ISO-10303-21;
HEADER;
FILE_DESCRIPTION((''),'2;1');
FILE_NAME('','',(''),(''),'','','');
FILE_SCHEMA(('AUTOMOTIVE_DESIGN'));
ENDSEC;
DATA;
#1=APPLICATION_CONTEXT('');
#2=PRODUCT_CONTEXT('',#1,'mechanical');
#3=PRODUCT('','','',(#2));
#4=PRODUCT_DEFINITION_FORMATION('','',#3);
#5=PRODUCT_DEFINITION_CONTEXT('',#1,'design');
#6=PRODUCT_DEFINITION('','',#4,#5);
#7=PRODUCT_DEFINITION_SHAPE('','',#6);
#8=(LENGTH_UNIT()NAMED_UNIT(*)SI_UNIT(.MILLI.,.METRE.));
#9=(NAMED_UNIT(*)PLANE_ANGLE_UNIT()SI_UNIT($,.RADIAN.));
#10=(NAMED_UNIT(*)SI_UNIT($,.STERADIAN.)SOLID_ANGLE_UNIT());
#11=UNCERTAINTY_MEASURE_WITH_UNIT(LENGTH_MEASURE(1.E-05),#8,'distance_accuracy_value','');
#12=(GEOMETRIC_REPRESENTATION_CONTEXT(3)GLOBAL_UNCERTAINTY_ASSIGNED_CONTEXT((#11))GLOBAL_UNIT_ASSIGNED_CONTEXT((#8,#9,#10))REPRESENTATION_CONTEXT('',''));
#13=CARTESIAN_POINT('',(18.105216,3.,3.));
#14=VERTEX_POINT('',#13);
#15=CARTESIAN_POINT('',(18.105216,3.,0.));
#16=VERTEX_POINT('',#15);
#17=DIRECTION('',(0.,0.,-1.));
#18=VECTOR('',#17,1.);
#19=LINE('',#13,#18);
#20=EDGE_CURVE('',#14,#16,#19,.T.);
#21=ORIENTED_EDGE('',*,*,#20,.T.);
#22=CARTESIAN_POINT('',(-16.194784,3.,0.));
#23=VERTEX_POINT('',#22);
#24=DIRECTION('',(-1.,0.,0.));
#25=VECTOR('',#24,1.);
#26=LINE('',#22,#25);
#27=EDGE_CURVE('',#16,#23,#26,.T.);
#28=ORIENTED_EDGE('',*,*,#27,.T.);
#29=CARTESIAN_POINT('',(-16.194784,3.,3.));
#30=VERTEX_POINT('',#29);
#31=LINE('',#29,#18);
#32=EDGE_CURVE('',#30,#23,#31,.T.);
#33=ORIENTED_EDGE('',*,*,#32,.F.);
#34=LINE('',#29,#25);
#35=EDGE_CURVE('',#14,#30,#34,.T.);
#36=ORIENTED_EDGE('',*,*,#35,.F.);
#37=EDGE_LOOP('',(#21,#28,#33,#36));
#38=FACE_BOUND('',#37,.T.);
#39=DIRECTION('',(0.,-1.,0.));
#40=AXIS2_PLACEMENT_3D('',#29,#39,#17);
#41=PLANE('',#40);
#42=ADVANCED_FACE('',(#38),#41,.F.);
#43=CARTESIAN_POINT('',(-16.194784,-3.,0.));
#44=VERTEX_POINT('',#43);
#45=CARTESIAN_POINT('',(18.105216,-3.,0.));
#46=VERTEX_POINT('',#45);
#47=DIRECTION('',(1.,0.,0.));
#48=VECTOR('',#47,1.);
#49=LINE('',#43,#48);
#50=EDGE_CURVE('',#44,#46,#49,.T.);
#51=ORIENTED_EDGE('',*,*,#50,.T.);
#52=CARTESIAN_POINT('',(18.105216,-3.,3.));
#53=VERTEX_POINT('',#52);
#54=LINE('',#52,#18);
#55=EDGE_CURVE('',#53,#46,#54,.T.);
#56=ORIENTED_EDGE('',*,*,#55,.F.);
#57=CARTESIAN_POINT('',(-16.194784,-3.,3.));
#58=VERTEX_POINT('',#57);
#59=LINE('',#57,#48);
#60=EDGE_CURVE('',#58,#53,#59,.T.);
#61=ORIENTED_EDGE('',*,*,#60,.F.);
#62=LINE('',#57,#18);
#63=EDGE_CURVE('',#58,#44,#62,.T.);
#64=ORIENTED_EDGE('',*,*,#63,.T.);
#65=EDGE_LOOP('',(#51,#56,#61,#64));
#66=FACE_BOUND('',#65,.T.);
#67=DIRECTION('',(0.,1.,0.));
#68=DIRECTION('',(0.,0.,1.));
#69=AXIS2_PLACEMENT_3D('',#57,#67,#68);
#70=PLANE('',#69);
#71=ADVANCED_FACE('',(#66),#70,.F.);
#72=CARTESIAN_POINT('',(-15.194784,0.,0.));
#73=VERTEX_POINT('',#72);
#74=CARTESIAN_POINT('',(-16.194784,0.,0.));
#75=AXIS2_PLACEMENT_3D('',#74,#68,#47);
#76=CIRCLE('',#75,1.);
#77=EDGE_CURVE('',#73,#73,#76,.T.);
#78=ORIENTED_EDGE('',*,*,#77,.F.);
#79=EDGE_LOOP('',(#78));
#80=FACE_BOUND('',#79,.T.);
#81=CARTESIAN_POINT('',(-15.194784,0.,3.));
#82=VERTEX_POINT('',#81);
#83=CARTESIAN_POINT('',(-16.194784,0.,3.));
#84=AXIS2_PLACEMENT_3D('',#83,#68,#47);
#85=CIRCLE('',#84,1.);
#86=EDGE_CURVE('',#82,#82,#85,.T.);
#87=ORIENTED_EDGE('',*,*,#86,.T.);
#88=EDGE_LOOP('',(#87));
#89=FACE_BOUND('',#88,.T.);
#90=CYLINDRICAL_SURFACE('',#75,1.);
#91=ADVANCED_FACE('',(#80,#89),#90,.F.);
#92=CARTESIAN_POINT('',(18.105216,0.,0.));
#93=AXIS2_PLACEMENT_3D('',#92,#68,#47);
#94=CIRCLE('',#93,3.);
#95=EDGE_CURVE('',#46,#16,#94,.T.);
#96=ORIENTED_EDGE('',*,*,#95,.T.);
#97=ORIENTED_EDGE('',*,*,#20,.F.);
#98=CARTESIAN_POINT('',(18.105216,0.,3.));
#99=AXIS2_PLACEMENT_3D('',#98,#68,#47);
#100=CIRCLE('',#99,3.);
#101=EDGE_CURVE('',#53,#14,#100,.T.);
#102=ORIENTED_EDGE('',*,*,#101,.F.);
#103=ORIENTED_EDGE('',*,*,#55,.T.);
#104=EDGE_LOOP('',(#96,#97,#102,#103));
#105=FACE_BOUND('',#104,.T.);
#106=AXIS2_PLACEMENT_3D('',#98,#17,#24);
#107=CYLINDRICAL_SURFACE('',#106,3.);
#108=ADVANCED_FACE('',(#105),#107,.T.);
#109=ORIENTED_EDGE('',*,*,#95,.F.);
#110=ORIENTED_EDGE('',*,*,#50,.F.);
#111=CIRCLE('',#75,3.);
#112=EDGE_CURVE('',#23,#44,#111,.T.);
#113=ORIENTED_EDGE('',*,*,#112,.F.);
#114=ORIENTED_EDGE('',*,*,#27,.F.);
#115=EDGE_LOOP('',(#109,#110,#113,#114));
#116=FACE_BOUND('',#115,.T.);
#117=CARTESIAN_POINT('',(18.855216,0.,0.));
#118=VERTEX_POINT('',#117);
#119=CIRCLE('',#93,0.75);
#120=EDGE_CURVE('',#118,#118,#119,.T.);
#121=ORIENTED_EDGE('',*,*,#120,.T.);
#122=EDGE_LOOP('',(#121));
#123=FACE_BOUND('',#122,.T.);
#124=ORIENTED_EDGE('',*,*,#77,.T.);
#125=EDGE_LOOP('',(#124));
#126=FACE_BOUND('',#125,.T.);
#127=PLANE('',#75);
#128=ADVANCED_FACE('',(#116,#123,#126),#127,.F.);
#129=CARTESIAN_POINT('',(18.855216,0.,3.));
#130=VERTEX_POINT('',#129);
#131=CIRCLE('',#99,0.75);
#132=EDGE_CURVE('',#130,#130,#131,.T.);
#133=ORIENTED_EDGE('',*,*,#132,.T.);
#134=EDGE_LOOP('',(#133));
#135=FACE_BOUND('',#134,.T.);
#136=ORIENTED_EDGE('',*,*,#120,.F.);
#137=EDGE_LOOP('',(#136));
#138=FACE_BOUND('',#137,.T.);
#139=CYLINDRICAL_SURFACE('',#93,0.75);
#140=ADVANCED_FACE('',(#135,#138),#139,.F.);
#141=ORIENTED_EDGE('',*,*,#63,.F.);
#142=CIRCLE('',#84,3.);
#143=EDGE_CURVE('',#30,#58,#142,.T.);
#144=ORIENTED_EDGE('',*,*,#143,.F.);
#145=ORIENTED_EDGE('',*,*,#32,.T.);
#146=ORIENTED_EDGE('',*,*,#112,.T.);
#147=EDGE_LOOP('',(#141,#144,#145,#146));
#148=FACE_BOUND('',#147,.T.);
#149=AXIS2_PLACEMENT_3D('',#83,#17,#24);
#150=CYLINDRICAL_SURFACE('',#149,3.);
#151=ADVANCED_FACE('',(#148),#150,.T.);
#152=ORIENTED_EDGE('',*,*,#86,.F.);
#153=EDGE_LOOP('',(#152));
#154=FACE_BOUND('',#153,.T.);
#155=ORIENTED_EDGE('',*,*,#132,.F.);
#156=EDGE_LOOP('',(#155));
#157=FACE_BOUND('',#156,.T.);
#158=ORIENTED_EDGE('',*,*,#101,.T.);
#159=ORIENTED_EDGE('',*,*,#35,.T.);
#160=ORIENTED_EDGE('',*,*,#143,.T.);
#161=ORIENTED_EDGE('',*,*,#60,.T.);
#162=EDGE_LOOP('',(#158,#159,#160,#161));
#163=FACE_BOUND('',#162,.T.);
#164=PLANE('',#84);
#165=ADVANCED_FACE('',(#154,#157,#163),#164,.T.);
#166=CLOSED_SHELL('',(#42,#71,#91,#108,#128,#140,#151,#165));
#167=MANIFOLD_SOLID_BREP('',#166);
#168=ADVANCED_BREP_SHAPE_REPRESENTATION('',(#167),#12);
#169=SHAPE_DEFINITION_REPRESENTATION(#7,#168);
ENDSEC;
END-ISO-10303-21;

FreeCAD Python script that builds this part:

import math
import FreeCAD as App
import Part
import Sketcher

V = App.Vector
Q = App.Units.Quantity

doc = App.newDocument("Part")
body = doc.addObject("PartDesign::Body", "Body")

sketch1 = body.newObject("Sketcher::SketchObject", "Sketch")
sketch1.AttachmentSupport = (doc.getObject("XY_Plane"), [""])
sketch1.MapMode = "FlatFace"
sketch1.addGeometry(Part.LineSegment(V(18.1, 3, 0), V(-16.2, 3, 0)), False)
sketch1.addGeometry(Part.ArcOfCircle(Part.Circle(V(-16.2, 0, 0), V(0, 0, 1), 3), math.radians(90), math.radians(270)), False)
sketch1.addGeometry(Part.LineSegment(V(-16.2, -3, 0), V(18.1, -3, 0)), False)
sketch1.addGeometry(Part.ArcOfCircle(Part.Circle(V(18.1, 0, 0), V(0, 0, 1), 3), math.radians(-90), math.radians(90)), False)
sketch1.addConstraint(Sketcher.Constraint("Tangent", 0, 2, 1, 1))
sketch1.addConstraint(Sketcher.Constraint("Tangent", 1, 2, 2, 1))
sketch1.addConstraint(Sketcher.Constraint("Tangent", 2, 2, 3, 1))
sketch1.addConstraint(Sketcher.Constraint("Tangent", 3, 2, 0, 1))
sketch1.addConstraint(Sketcher.Constraint("Horizontal", 0))
sketch1.addConstraint(Sketcher.Constraint("Horizontal", 2))
sketch1.addConstraint(Sketcher.Constraint("PointOnObject", 1, 3, -1))
sketch1.addConstraint(Sketcher.Constraint("Radius", 1, Q("3 mm")))
sketch1.addConstraint(Sketcher.Constraint("DistanceX", 0, 2, 0, 1, Q("34.3 mm")))
sketch1.addConstraint(Sketcher.Constraint("DistanceX", 1, 3, -1, 1, Q("16.194784 mm")))
pad1 = body.newObject("PartDesign::Pad", "Pad")
pad1.Profile = sketch1
pad1.Length = 3

sketch2 = body.newObject("Sketcher::SketchObject", "Sketch001")
sketch2.AttachmentSupport = (doc.getObject("XY_Plane"), [""])
sketch2.MapMode = "FlatFace"
sketch2.AttachmentOffset = App.Placement(V(0, 0, 3), App.Rotation())
sketch2.addGeometry(Part.Circle(V(18.1, 0, 0), V(0, 0, 1), 0.8), False)
sketch2.addGeometry(Part.Circle(V(-16.2, 0, 0), V(0, 0, 1), 1), False)
sketch2.addConstraint(Sketcher.Constraint("PointOnObject", 0, 3, -1))
sketch2.addConstraint(Sketcher.Constraint("PointOnObject", 1, 3, -1))
sketch2.addConstraint(Sketcher.Constraint("Diameter", 1, Q("2 mm")))
sketch2.addConstraint(Sketcher.Constraint("Diameter", 0, Q("1.5 mm")))
sketch2.addConstraint(Sketcher.Constraint("DistanceX", 1, 3, 0, 3, Q("34.3 mm")))
sketch2.addConstraint(Sketcher.Constraint("DistanceX", -1, 1, 0, 3, Q("18.105216 mm")))
pocket1 = body.newObject("PartDesign::Pocket", "Pocket")
pocket1.Profile = sketch2
pocket1.Type = "ThroughAll"

doc.recompute()
